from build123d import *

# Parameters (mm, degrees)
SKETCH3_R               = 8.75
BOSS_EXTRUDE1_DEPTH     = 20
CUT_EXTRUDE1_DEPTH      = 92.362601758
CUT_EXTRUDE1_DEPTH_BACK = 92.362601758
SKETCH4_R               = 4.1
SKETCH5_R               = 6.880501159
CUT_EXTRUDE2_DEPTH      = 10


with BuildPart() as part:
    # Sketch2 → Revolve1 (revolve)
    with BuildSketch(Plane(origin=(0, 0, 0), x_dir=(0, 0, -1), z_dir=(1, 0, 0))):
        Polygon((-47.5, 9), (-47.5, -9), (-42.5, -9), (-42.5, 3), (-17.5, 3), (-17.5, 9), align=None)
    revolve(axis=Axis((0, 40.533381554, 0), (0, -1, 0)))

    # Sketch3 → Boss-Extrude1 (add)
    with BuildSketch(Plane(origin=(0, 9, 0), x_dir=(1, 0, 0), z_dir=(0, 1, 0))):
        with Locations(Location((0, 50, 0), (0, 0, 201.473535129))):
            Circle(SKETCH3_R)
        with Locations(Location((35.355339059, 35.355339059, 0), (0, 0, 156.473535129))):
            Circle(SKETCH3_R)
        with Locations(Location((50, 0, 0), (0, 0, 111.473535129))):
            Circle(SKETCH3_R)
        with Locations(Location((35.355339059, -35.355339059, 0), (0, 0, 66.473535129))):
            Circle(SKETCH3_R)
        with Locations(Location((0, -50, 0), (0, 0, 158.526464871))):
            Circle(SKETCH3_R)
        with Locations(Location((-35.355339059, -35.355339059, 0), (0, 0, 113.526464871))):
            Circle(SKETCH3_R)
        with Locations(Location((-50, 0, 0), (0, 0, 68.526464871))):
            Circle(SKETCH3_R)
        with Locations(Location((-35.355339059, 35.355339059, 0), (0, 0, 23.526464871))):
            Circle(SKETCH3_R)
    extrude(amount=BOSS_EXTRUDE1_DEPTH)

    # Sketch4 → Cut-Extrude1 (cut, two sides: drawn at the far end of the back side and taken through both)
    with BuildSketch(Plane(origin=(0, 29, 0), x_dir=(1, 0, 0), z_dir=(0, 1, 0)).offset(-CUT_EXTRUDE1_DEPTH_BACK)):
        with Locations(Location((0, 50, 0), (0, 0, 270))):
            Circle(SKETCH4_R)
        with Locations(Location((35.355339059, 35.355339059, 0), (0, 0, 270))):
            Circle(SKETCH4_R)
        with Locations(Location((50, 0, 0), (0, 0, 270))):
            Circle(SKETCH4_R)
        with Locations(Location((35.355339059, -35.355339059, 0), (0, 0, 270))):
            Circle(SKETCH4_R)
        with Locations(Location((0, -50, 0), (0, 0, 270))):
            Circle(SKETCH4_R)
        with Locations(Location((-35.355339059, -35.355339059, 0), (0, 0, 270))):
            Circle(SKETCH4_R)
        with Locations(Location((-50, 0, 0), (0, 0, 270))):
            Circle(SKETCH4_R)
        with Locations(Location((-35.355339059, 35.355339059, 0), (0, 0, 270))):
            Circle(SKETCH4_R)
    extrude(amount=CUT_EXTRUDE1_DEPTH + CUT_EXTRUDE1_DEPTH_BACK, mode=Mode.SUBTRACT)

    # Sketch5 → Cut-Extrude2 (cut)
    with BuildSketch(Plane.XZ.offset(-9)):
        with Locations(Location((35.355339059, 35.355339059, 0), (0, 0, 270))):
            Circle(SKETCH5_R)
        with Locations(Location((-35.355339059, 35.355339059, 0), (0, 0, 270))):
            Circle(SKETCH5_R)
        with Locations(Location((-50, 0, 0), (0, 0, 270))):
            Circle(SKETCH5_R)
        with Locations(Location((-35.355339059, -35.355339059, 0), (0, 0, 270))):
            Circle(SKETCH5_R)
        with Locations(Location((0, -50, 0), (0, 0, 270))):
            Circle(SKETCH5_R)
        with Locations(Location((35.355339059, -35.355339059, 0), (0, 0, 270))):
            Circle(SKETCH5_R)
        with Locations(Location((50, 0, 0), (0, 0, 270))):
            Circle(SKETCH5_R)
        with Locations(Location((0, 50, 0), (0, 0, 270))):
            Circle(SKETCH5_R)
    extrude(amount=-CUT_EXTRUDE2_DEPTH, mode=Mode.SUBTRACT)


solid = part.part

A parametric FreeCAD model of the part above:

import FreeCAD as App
import Part
import Sketcher
from FreeCAD import Vector

doc = App.newDocument("Part")
body = doc.addObject("PartDesign::Body", "Body")

sketch1 = doc.addObject("Sketcher::SketchObject", "Sketch")
body.addObject(sketch1)
sketch1.AttachmentSupport = (doc.YZ_Plane, [""])
sketch1.MapMode = "FlatFace"
sketch1.addGeometry(Part.LineSegment(Vector(9, 48, 0), Vector(-9, 48, 0)), False)
sketch1.addGeometry(Part.LineSegment(Vector(-9, 48, 0), Vector(-9, 42, 0)), False)
sketch1.addGeometry(Part.LineSegment(Vector(-9, 42, 0), Vector(3, 42, 0)), False)
sketch1.addGeometry(Part.LineSegment(Vector(3, 42, 0), Vector(3, 18, 0)), False)
sketch1.addGeometry(Part.LineSegment(Vector(3, 18, 0), Vector(9, 18, 0)), False)
sketch1.addGeometry(Part.LineSegment(Vector(9, 18, 0), Vector(9, 48, 0)), False)
sketch1.addConstraint(Sketcher.Constraint("Coincident", 0, 2, 1, 1))
sketch1.addConstraint(Sketcher.Constraint("Coincident", 1, 2, 2, 1))
sketch1.addConstraint(Sketcher.Constraint("Coincident", 2, 2, 3, 1))
sketch1.addConstraint(Sketcher.Constraint("Coincident", 3, 2, 4, 1))
sketch1.addConstraint(Sketcher.Constraint("Coincident", 4, 2, 5, 1))
sketch1.addConstraint(Sketcher.Constraint("Coincident", 5, 2, 0, 1))
sketch1.addConstraint(Sketcher.Constraint("Horizontal", 0))
sketch1.addConstraint(Sketcher.Constraint("Vertical", 1))
sketch1.addConstraint(Sketcher.Constraint("Horizontal", 2))
sketch1.addConstraint(Sketcher.Constraint("Vertical", 3))
sketch1.addConstraint(Sketcher.Constraint("Horizontal", 4))
sketch1.addConstraint(Sketcher.Constraint("Vertical", 5))
sketch1.addConstraint(Sketcher.Constraint("DistanceX", 0, 2, 0, 1, 18.0))
sketch1.addConstraint(Sketcher.Constraint("DistanceX", 2, 1, 2, 2, 12.0))
sketch1.addConstraint(Sketcher.Constraint("DistanceY", 1, 2, 1, 1, 5.0))
sketch1.addConstraint(Sketcher.Constraint("DistanceY", 3, 2, 3, 1, 25.0))
sketch1.addConstraint(Sketcher.Constraint("DistanceX", 0, 2, -1, 1, 9.0))
sketch1.addConstraint(Sketcher.Constraint("DistanceY", -1, 1, 0, 2, 47.5))
revolution = doc.addObject("PartDesign::Revolution", "Revolution")
body.addObject(revolution)
revolution.Profile = sketch1
revolution.ReferenceAxis = (sketch1, ["H_Axis"])
revolution.Angle = 360

sketch2 = doc.addObject("Sketcher::SketchObject", "Sketch001")
body.addObject(sketch2)
sketch2.AttachmentSupport = (doc.XZ_Plane, [""])
sketch2.MapMode = "FlatFace"
sketch2.AttachmentOffset = App.Placement(Vector(0, 0, -9), App.Rotation())
sketch2.addGeometry(Part.Circle(Vector(0, -50, 0), Vector(0, 0, 1), 9), False)
sketch2.addGeometry(Part.Circle(Vector(35, -35, 0), Vector(0, 0, 1), 9), False)
sketch2.addGeometry(Part.Circle(Vector(50, 0, 0), Vector(0, 0, 1), 9), False)
sketch2.addGeometry(Part.Circle(Vector(35, 35, 0), Vector(0, 0, 1), 9), False)
sketch2.addGeometry(Part.Circle(Vector(0, 50, 0), Vector(0, 0, 1), 9), False)
sketch2.addGeometry(Part.Circle(Vector(-35, 35, 0), Vector(0, 0, 1), 9), False)
sketch2.addGeometry(Part.Circle(Vector(-50, 0, 0), Vector(0, 0, 1), 9), False)
sketch2.addGeometry(Part.Circle(Vector(-35, -35, 0), Vector(0, 0, 1), 9), False)
sketch2.addConstraint(Sketcher.Constraint("Equal", 0, 1))
sketch2.addConstraint(Sketcher.Constraint("Equal", 1, 2))
sketch2.addConstraint(Sketcher.Constraint("Equal", 2, 3))
sketch2.addConstraint(Sketcher.Constraint("Equal", 3, 4))
sketch2.addConstraint(Sketcher.Constraint("Equal", 4, 5))
sketch2.addConstraint(Sketcher.Constraint("Equal", 5, 6))
sketch2.addConstraint(Sketcher.Constraint("Equal", 6, 7))
sketch2.addConstraint(Sketcher.Constraint("Symmetric", 0, 3, 4, 3, -1, 1))
sketch2.addConstraint(Sketcher.Constraint("Symmetric", 1, 3, 5, 3, -1, 1))
sketch2.addConstraint(Sketcher.Constraint("Symmetric", 2, 3, 6, 3, -1, 1))
sketch2.addConstraint(Sketcher.Constraint("Symmetric", 3, 3, 7, 3, -1, 1))
sketch2.addConstraint(Sketcher.Constraint("Symmetric", 3, 3, 5, 3, -2))
sketch2.addConstraint(Sketcher.Constraint("PointOnObject", 0, 3, -2))
sketch2.addConstraint(Sketcher.Constraint("PointOnObject", 2, 3, -1))
sketch2.addConstraint(Sketcher.Constraint("Diameter", 0, 17.5))
sketch2.addConstraint(Sketcher.Constraint("DistanceY", 0, 3, -1, 1, 50.0))
sketch2.addConstraint(Sketcher.Constraint("DistanceX", -1, 1, 2, 3, 50.0))
sketch2.addConstraint(Sketcher.Constraint("DistanceX", -1, 1, 1, 3, 35.355339))
sketch2.addConstraint(Sketcher.Constraint("DistanceY", 1, 3, -1, 1, 35.355339))
pad1 = doc.addObject("PartDesign::Pad", "Pad")
body.addObject(pad1)
pad1.Profile = sketch2
pad1.Length = 20
pad1.Reversed = True

sketch3 = doc.addObject("Sketcher::SketchObject", "Sketch002")
body.addObject(sketch3)
sketch3.AttachmentSupport = (doc.XZ_Plane, [""])
sketch3.MapMode = "FlatFace"
sketch3.AttachmentOffset = App.Placement(Vector(0, 0, -29), App.Rotation())
sketch3.addGeometry(Part.Circle(Vector(0, -50, 0), Vector(0, 0, 1), 4.1), False)
sketch3.addGeometry(Part.Circle(Vector(35.4, -35.4, 0), Vector(0, 0, 1), 4.1), False)
sketch3.addGeometry(Part.Circle(Vector(50, 0, 0), Vector(0, 0, 1), 4.1), False)
sketch3.addGeometry(Part.Circle(Vector(35.4, 35.4, 0), Vector(0, 0, 1), 4.1), False)
sketch3.addGeometry(Part.Circle(Vector(0, 50, 0), Vector(0, 0, 1), 4.1), False)
sketch3.addGeometry(Part.Circle(Vector(-35.4, 35.4, 0), Vector(0, 0, 1), 4.1), False)
sketch3.addGeometry(Part.Circle(Vector(-50, 0, 0), Vector(0, 0, 1), 4.1), False)
sketch3.addGeometry(Part.Circle(Vector(-35.4, -35.4, 0), Vector(0, 0, 1), 4.1), False)
sketch3.addConstraint(Sketcher.Constraint("Equal", 0, 1))
sketch3.addConstraint(Sketcher.Constraint("Equal", 1, 2))
sketch3.addConstraint(Sketcher.Constraint("Equal", 2, 3))
sketch3.addConstraint(Sketcher.Constraint("Equal", 3, 4))
sketch3.addConstraint(Sketcher.Constraint("Equal", 4, 5))
sketch3.addConstraint(Sketcher.Constraint("Equal", 5, 6))
sketch3.addConstraint(Sketcher.Constraint("Equal", 6, 7))
sketch3.addConstraint(Sketcher.Constraint("Symmetric", 0, 3, 4, 3, -1, 1))
sketch3.addConstraint(Sketcher.Constraint("Symmetric", 1, 3, 5, 3, -1, 1))
sketch3.addConstraint(Sketcher.Constraint("Symmetric", 2, 3, 6, 3, -1, 1))
sketch3.addConstraint(Sketcher.Constraint("Symmetric", 3, 3, 7, 3, -1, 1))
sketch3.addConstraint(Sketcher.Constraint("Symmetric", 3, 3, 5, 3, -2))
sketch3.addConstraint(Sketcher.Constraint("PointOnObject", 0, 3, -2))
sketch3.addConstraint(Sketcher.Constraint("PointOnObject", 2, 3, -1))
sketch3.addConstraint(Sketcher.Constraint("Diameter", 0, 8.2))
sketch3.addConstraint(Sketcher.Constraint("DistanceY", 0, 3, -1, 1, 50.0))
sketch3.addConstraint(Sketcher.Constraint("DistanceX", -1, 1, 2, 3, 50.0))
sketch3.addConstraint(Sketcher.Constraint("DistanceX", -1, 1, 1, 3, 35.355339))
sketch3.addConstraint(Sketcher.Constraint("DistanceY", 1, 3, -1, 1, 35.355339))
pocket1 = doc.addObject("PartDesign::Pocket", "Pocket")
body.addObject(pocket1)
pocket1.Profile = sketch3
pocket1.Type = "ThroughAll"
pocket1.Midplane = True

sketch4 = doc.addObject("Sketcher::SketchObject", "Sketch003")
body.addObject(sketch4)
sketch4.AttachmentSupport = (doc.XZ_Plane, [""])
sketch4.MapMode = "FlatFace"
sketch4.AttachmentOffset = App.Placement(Vector(0, 0, -9), App.Rotation())
sketch4.addGeometry(Part.Circle(Vector(35, 35, 0), Vector(0, 0, 1), 7), False)
sketch4.addGeometry(Part.Circle(Vector(-35, 35, 0), Vector(0, 0, 1), 7), False)
sketch4.addGeometry(Part.Circle(Vector(-50, 0, 0), Vector(0, 0, 1), 7), False)
sketch4.addGeometry(Part.Circle(Vector(-35, -35, 0), Vector(0, 0, 1), 7), False)
sketch4.addGeometry(Part.Circle(Vector(0, -50, 0), Vector(0, 0, 1), 7), False)
sketch4.addGeometry(Part.Circle(Vector(35, -35, 0), Vector(0, 0, 1), 7), False)
sketch4.addGeometry(Part.Circle(Vector(50, 0, 0), Vector(0, 0, 1), 7), False)
sketch4.addGeometry(Part.Circle(Vector(0, 50, 0), Vector(0, 0, 1), 7), False)
sketch4.addConstraint(Sketcher.Constraint("Equal", 0, 1))
sketch4.addConstraint(Sketcher.Constraint("Equal", 1, 2))
sketch4.addConstraint(Sketcher.Constraint("Equal", 2, 3))
sketch4.addConstraint(Sketcher.Constraint("Equal", 3, 4))
sketch4.addConstraint(Sketcher.Constraint("Equal", 4, 5))
sketch4.addConstraint(Sketcher.Constraint("Equal", 5, 6))
sketch4.addConstraint(Sketcher.Constraint("Equal", 6, 7))
sketch4.addConstraint(Sketcher.Constraint("Symmetric", 0, 3, 3, 3, -1, 1))
sketch4.addConstraint(Sketcher.Constraint("Symmetric", 1, 3, 5, 3, -1, 1))
sketch4.addConstraint(Sketcher.Constraint("Symmetric", 2, 3, 6, 3, -1, 1))
sketch4.addConstraint(Sketcher.Constraint("Symmetric", 4, 3, 7, 3, -1, 1))
sketch4.addConstraint(Sketcher.Constraint("Symmetric", 0, 3, 1, 3, -2))
sketch4.addConstraint(Sketcher.Constraint("PointOnObject", 2, 3, -1))
sketch4.addConstraint(Sketcher.Constraint("PointOnObject", 4, 3, -2))
sketch4.addConstraint(Sketcher.Constraint("DistanceX", 2, 3, -1, 1, 50.0))
sketch4.addConstraint(Sketcher.Constraint("DistanceY", 4, 3, -1, 1, 50.0))
sketch4.addConstraint(Sketcher.Constraint("Diameter", 0, 13.761002))
sketch4.addConstraint(Sketcher.Constraint("DistanceX", -1, 1, 0, 3, 35.355339))
sketch4.addConstraint(Sketcher.Constraint("DistanceY", -1, 1, 0, 3, 35.355339))
pocket2 = doc.addObject("PartDesign::Pocket", "Pocket001")
body.addObject(pocket2)
pocket2.Profile = sketch4
pocket2.Length = 10

doc.recompute()
